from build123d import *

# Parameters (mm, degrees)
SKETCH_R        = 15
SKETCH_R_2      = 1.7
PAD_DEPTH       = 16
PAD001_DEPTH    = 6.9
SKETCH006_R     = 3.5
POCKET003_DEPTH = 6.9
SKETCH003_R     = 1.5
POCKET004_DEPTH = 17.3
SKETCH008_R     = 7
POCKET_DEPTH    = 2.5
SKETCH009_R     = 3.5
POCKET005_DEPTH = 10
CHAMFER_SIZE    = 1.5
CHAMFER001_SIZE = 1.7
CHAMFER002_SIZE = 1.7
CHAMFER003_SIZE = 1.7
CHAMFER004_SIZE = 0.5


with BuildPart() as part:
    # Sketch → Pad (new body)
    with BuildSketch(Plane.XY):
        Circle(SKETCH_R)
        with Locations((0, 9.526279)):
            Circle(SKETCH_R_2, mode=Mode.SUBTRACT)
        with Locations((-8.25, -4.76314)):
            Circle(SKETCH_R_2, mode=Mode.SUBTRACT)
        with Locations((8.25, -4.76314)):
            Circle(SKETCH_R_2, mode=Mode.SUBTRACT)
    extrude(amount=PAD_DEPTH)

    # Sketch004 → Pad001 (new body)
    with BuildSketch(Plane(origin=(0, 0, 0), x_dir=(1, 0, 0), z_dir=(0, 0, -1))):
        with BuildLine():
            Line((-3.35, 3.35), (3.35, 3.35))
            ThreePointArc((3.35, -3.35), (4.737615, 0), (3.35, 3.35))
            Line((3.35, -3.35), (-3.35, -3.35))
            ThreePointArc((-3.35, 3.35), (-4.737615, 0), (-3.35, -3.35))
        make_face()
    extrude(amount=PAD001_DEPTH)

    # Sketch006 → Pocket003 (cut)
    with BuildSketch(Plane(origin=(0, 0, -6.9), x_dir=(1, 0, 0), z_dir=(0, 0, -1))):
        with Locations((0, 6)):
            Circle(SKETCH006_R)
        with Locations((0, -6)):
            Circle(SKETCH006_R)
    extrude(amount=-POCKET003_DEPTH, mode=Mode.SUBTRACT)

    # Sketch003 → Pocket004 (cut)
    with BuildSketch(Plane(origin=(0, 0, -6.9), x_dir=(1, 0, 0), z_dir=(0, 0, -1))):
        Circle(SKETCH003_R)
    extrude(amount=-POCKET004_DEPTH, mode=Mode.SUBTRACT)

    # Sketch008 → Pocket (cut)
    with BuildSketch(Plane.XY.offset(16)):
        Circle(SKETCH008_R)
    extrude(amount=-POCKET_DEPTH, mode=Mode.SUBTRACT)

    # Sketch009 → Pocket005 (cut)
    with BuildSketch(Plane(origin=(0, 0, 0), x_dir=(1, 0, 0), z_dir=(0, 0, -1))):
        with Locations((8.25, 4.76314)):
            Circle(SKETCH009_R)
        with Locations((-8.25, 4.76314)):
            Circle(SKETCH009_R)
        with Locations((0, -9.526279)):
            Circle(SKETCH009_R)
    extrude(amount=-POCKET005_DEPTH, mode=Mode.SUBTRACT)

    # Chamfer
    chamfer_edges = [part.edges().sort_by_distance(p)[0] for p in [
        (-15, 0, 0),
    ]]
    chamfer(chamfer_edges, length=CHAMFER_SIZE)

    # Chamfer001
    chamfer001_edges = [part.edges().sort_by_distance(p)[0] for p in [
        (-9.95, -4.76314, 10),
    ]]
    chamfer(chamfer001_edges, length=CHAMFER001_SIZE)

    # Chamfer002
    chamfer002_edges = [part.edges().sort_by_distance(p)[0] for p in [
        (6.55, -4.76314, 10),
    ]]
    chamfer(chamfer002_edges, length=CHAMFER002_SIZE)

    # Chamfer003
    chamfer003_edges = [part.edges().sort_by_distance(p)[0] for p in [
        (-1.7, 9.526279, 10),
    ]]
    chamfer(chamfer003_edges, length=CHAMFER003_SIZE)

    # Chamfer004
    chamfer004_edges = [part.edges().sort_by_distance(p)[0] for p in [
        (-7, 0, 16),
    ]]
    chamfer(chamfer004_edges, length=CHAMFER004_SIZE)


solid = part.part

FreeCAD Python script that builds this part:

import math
import FreeCAD as App
import Part
import Sketcher

V = App.Vector
Q = App.Units.Quantity


def edges_at(feature, points):
    """Names of the edges that pass closest to the given points."""
    edges = feature.Shape.Edges
    near = lambda p: min(range(len(edges)), key=lambda i: edges[i].distToShape(Part.Vertex(*p))[0])
    return sorted({f"Edge{near(p) + 1}" for p in points})

doc = App.newDocument("Part")
body = doc.addObject("PartDesign::Body", "Body")

sketch1 = body.newObject("Sketcher::SketchObject", "Sketch")
sketch1.AttachmentSupport = (doc.getObject("XY_Plane"), [""])
sketch1.MapMode = "FlatFace"
sketch1.addGeometry(Part.Circle(V(0, 0, 0), V(0, 0, 1), 15), False)
sketch1.addGeometry(Part.Circle(V(-8.2, -4.8, 0), V(0, 0, 1), 1.7), False)
sketch1.addGeometry(Part.Circle(V(8.2, -4.8, 0), V(0, 0, 1), 1.7), False)
sketch1.addGeometry(Part.Circle(V(0, 9.5, 0), V(0, 0, 1), 1.7), False)
sketch1.addConstraint(Sketcher.Constraint("Coincident", 0, 3, -1, 1))
sketch1.addConstraint(Sketcher.Constraint("Equal", 1, 2))
sketch1.addConstraint(Sketcher.Constraint("Equal", 2, 3))
sketch1.addConstraint(Sketcher.Constraint("Symmetric", 1, 3, 2, 3, -2))
sketch1.addConstraint(Sketcher.Constraint("PointOnObject", 3, 3, -2))
sketch1.addConstraint(Sketcher.Constraint("Diameter", 0, Q("30 mm")))
sketch1.addConstraint(Sketcher.Constraint("Diameter", 1, Q("3.4 mm")))
sketch1.addConstraint(Sketcher.Constraint("DistanceX", 1, 3, 2, 3, Q("16.5 mm")))
sketch1.addConstraint(Sketcher.Constraint("DistanceY", 1, 3, -1, 1, Q("4.76314 mm")))
sketch1.addConstraint(Sketcher.Constraint("DistanceY", -1, 1, 3, 3, Q("9.526279 mm")))
pad1 = body.newObject("PartDesign::Pad", "Pad")
pad1.Profile = sketch1
pad1.Length = 16

sketch2 = body.newObject("Sketcher::SketchObject", "Sketch001")
sketch2.AttachmentSupport = (doc.getObject("XY_Plane"), [""])
sketch2.MapMode = "FlatFace"
sketch2.addGeometry(Part.LineSegment(V(3.4, -3.4, 0), V(-3.4, -3.4, 0)), False)
sketch2.addGeometry(Part.ArcOfCircle(Part.Circle(V(0, 0, 0), V(0, 0, 1), 4.7), math.radians(135), math.radians(225)), False)
sketch2.addGeometry(Part.LineSegment(V(-3.4, 3.4, 0), V(3.4, 3.4, 0)), False)
sketch2.addGeometry(Part.ArcOfCircle(Part.Circle(V(0, 0, 0), V(0, 0, 1), 4.7), math.radians(-45), math.radians(45)), False)
sketch2.addConstraint(Sketcher.Constraint("Coincident", 0, 2, 1, 2))
sketch2.addConstraint(Sketcher.Constraint("Coincident", 1, 1, 2, 1))
sketch2.addConstraint(Sketcher.Constraint("Coincident", 2, 2, 3, 2))
sketch2.addConstraint(Sketcher.Constraint("Coincident", 3, 1, 0, 1))
sketch2.addConstraint(Sketcher.Constraint("Horizontal", 0))
sketch2.addConstraint(Sketcher.Constraint("Horizontal", 2))
sketch2.addConstraint(Sketcher.Constraint("Coincident", 1, 3, -1, 1))
sketch2.addConstraint(Sketcher.Constraint("Coincident", 3, 3, -1, 1))
sketch2.addConstraint(Sketcher.Constraint("Equal", 1, 3))
sketch2.addConstraint(Sketcher.Constraint("Vertical", 0, 2, 1, 1))
sketch2.addConstraint(Sketcher.Constraint("DistanceX", 0, 2, 0, 1, Q("6.7 mm")))
sketch2.addConstraint(Sketcher.Constraint("DistanceY", 0, 2, 1, 1, Q("6.7 mm")))
pad2 = body.newObject("PartDesign::Pad", "Pad001")
pad2.Profile = sketch2
pad2.Length = 6.9
pad2.Reversed = True

sketch3 = body.newObject("Sketcher::SketchObject", "Sketch002")
sketch3.AttachmentSupport = (doc.getObject("XY_Plane"), [""])
sketch3.MapMode = "FlatFace"
sketch3.AttachmentOffset = App.Placement(V(0, 0, -6.9), App.Rotation())
sketch3.addGeometry(Part.Circle(V(0, -6, 0), V(0, 0, 1), 3.5), False)
sketch3.addGeometry(Part.Circle(V(0, 6, 0), V(0, 0, 1), 3.5), False)
sketch3.addConstraint(Sketcher.Constraint("Equal", 0, 1))
sketch3.addConstraint(Sketcher.Constraint("Symmetric", 0, 3, 1, 3, -1, 1))
sketch3.addConstraint(Sketcher.Constraint("PointOnObject", 0, 3, -2))
sketch3.addConstraint(Sketcher.Constraint("Diameter", 0, Q("7 mm")))
sketch3.addConstraint(Sketcher.Constraint("DistanceY", 0, 3, -1, 1, Q("6 mm")))
pocket1 = body.newObject("PartDesign::Pocket", "Pocket")
pocket1.Profile = sketch3
pocket1.Length = 6.9
pocket1.Reversed = True

sketch4 = body.newObject("Sketcher::SketchObject", "Sketch003")
sketch4.AttachmentSupport = (doc.getObject("XY_Plane"), [""])
sketch4.MapMode = "FlatFace"
sketch4.AttachmentOffset = App.Placement(V(0, 0, -6.9), App.Rotation())
sketch4.addGeometry(Part.Circle(V(0, 0, 0), V(0, 0, 1), 1.5), False)
sketch4.addConstraint(Sketcher.Constraint("Coincident", 0, 3, -1, 1))
sketch4.addConstraint(Sketcher.Constraint("Diameter", 0, Q("3 mm")))
pocket2 = body.newObject("PartDesign::Pocket", "Pocket001")
pocket2.Profile = sketch4
pocket2.Length = 17.3
pocket2.Reversed = True

sketch5 = body.newObject("Sketcher::SketchObject", "Sketch004")
sketch5.AttachmentSupport = (doc.getObject("XY_Plane"), [""])
sketch5.MapMode = "FlatFace"
sketch5.AttachmentOffset = App.Placement(V(0, 0, 16), App.Rotation())
sketch5.addGeometry(Part.Circle(V(0, 0, 0), V(0, 0, 1), 7), False)
sketch5.addConstraint(Sketcher.Constraint("Coincident", 0, 3, -1, 1))
sketch5.addConstraint(Sketcher.Constraint("Diameter", 0, Q("14 mm")))
pocket3 = body.newObject("PartDesign::Pocket", "Pocket002")
pocket3.Profile = sketch5
pocket3.Length = 2.5

sketch6 = body.newObject("Sketcher::SketchObject", "Sketch005")
sketch6.AttachmentSupport = (doc.getObject("XY_Plane"), [""])
sketch6.MapMode = "FlatFace"
sketch6.addGeometry(Part.Circle(V(8.2, -4.8, 0), V(0, 0, 1), 3.5), False)
sketch6.addGeometry(Part.Circle(V(-8.2, -4.8, 0), V(0, 0, 1), 3.5), False)
sketch6.addGeometry(Part.Circle(V(0, 9.5, 0), V(0, 0, 1), 3.5), False)
sketch6.addConstraint(Sketcher.Constraint("Equal", 0, 1))
sketch6.addConstraint(Sketcher.Constraint("Equal", 1, 2))
sketch6.addConstraint(Sketcher.Constraint("Symmetric", 0, 3, 1, 3, -2))
sketch6.addConstraint(Sketcher.Constraint("PointOnObject", 2, 3, -2))
sketch6.addConstraint(Sketcher.Constraint("Diameter", 0, Q("7 mm")))
sketch6.addConstraint(Sketcher.Constraint("DistanceX", 1, 3, 0, 3, Q("16.5 mm")))
sketch6.addConstraint(Sketcher.Constraint("DistanceY", 0, 3, -1, 1, Q("4.76314 mm")))
sketch6.addConstraint(Sketcher.Constraint("DistanceY", -1, 1, 2, 3, Q("9.526279 mm")))
pocket4 = body.newObject("PartDesign::Pocket", "Pocket003")
pocket4.Profile = sketch6
pocket4.Length = 10
pocket4.Reversed = True
doc.recompute()

chamfer = body.newObject("PartDesign::Chamfer", "Chamfer")
chamfer.Base = (pocket4, edges_at(pocket4, [(-15, 0, 0)]))
chamfer.Size = 1.5
doc.recompute()

chamfer2 = body.newObject("PartDesign::Chamfer", "Chamfer001")
chamfer2.Base = (chamfer, edges_at(chamfer, [(-9.95, -4.763, 10)]))
chamfer2.Size = 1.7
doc.recompute()

chamfer3 = body.newObject("PartDesign::Chamfer", "Chamfer002")
chamfer3.Base = (chamfer2, edges_at(chamfer2, [(6.55, -4.763, 10)]))
chamfer3.Size = 1.7
doc.recompute()

chamfer4 = body.newObject("PartDesign::Chamfer", "Chamfer003")
chamfer4.Base = (chamfer3, edges_at(chamfer3, [(-1.7, 9.526, 10)]))
chamfer4.Size = 1.7
doc.recompute()

chamfer5 = body.newObject("PartDesign::Chamfer", "Chamfer004")
chamfer5.Base = (chamfer4, edges_at(chamfer4, [(-7, 0, 16)]))
chamfer5.Size = 0.5

doc.recompute()
